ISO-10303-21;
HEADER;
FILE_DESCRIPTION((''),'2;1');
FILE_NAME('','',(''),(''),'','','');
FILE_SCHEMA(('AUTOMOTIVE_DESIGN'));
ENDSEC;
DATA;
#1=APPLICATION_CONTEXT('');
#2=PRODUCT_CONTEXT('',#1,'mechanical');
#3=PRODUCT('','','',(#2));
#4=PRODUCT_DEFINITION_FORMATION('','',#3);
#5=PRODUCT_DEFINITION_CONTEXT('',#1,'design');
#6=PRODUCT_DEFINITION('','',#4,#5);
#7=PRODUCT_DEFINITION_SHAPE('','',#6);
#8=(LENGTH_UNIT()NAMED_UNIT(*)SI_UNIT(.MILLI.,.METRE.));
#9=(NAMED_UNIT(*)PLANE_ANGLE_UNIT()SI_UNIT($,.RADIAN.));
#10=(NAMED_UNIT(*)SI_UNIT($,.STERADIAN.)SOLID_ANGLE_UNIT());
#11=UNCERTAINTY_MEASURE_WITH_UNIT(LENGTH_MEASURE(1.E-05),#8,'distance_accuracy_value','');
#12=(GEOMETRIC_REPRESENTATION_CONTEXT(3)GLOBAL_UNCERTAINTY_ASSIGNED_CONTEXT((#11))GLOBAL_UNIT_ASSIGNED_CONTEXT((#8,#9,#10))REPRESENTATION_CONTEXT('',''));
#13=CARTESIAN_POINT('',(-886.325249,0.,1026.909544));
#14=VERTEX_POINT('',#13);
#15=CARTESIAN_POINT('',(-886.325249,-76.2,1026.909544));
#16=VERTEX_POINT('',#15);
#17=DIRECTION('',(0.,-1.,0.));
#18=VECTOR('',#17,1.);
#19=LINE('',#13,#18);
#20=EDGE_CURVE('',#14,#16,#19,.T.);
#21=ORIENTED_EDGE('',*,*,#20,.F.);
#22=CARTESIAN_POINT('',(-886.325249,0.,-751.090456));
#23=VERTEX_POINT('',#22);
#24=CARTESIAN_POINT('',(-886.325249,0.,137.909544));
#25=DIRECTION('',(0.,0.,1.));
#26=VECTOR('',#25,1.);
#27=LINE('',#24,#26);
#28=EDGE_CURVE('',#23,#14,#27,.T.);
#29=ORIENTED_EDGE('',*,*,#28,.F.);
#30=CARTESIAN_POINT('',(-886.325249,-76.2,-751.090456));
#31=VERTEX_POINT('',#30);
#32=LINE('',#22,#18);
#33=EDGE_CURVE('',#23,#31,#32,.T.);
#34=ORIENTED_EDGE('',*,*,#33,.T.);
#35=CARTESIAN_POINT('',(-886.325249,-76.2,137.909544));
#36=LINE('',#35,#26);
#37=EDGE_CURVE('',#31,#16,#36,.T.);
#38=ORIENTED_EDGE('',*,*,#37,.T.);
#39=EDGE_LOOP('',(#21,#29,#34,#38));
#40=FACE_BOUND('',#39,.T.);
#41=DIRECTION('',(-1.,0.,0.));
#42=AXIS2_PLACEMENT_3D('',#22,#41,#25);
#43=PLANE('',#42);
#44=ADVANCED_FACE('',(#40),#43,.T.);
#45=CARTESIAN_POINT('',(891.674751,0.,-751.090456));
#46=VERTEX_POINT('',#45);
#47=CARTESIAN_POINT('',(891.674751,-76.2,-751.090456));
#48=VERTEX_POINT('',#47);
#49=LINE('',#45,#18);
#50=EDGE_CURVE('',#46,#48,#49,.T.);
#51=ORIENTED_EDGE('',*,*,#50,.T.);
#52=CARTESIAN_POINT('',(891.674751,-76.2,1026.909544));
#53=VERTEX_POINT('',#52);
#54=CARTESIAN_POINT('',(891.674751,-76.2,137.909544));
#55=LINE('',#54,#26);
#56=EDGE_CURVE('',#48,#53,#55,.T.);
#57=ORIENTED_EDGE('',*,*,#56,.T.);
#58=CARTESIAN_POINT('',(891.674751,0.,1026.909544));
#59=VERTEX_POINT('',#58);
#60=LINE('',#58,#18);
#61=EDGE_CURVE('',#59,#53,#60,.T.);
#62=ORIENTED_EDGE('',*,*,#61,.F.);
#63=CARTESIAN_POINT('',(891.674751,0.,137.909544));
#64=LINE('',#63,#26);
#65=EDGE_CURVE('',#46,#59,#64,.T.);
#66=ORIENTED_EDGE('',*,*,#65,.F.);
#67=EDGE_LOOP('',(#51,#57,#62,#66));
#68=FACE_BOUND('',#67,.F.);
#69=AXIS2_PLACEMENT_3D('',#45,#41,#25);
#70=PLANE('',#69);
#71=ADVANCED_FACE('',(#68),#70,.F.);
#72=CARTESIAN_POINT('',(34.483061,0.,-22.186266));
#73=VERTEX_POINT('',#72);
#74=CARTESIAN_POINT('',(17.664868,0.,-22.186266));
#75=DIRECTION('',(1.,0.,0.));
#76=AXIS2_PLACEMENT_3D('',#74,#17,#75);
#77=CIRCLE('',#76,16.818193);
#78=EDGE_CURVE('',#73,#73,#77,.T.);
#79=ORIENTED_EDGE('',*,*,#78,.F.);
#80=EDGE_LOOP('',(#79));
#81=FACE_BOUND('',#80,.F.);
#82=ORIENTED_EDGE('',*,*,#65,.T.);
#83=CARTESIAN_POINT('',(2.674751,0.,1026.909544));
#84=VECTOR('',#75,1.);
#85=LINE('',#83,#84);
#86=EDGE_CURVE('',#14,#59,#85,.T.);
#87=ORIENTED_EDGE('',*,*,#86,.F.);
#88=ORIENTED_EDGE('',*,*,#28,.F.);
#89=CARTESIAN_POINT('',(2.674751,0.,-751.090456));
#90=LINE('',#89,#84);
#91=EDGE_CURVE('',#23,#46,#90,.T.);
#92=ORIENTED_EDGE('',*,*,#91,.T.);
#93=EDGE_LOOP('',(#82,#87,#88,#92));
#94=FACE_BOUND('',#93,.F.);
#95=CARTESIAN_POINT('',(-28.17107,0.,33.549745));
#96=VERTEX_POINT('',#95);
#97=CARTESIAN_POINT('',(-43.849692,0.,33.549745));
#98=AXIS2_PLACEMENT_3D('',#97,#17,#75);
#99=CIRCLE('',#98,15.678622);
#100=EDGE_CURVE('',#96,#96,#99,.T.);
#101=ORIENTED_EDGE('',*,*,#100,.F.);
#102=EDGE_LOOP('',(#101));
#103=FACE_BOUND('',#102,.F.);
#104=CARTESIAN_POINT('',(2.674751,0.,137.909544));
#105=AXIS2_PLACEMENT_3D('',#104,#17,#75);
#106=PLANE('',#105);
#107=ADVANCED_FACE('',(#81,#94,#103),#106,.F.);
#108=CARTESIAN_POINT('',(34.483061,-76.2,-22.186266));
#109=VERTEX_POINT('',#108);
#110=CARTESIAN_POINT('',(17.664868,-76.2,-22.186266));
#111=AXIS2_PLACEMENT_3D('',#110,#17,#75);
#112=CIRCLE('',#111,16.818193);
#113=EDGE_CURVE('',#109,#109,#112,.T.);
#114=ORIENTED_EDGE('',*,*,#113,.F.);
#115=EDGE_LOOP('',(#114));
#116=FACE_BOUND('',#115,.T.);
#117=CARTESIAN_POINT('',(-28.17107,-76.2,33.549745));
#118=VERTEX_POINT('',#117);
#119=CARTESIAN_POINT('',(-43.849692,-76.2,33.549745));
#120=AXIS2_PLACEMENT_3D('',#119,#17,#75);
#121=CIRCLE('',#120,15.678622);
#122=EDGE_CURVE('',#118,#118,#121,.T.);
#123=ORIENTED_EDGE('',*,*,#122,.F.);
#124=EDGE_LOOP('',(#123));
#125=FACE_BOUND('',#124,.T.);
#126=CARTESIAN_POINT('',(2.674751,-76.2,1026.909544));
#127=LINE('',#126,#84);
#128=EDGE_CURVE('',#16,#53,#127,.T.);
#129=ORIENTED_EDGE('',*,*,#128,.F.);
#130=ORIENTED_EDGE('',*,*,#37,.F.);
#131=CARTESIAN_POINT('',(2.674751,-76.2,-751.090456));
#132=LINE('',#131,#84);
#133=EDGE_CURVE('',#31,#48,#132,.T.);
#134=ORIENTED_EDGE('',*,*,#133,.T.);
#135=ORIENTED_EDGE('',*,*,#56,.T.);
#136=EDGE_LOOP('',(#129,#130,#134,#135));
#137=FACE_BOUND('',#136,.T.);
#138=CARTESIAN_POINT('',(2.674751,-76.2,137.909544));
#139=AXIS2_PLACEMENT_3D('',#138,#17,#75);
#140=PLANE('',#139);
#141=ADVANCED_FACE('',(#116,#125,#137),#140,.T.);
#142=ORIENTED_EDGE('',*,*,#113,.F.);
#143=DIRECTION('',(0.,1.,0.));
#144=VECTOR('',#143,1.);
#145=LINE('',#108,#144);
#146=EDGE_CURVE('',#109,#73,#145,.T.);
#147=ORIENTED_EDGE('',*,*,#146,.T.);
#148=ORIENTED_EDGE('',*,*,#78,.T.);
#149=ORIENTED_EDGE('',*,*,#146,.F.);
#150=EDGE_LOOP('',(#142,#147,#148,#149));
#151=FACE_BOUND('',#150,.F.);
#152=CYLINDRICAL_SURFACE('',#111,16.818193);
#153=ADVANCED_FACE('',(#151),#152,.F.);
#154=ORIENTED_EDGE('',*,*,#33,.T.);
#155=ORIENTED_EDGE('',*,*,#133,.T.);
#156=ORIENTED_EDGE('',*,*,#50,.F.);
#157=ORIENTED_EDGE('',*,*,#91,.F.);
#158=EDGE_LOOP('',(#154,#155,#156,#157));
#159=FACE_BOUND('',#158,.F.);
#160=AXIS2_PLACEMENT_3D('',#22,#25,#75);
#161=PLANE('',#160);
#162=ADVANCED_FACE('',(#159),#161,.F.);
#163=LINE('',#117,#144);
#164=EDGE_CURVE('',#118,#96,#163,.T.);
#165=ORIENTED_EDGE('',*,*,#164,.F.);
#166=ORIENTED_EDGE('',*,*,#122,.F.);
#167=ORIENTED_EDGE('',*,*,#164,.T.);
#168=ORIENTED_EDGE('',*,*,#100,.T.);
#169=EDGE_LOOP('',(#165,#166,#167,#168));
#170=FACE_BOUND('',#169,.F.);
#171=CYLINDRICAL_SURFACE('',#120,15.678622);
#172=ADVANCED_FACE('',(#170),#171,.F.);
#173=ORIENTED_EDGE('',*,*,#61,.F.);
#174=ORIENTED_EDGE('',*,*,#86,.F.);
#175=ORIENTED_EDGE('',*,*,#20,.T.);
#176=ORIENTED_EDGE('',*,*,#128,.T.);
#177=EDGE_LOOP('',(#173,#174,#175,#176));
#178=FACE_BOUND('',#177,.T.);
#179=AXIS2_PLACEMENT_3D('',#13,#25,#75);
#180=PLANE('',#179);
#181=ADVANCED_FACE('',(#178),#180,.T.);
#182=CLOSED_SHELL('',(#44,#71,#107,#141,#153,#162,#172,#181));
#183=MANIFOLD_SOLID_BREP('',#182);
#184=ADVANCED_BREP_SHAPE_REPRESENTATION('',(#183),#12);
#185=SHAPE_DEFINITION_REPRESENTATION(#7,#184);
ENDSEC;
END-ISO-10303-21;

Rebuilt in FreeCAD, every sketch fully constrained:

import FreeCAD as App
import Part
import Sketcher

V = App.Vector
Q = App.Units.Quantity


def add_polygon(sketch, points):
    """Adds a closed chain of lines whose ends are joined by coincident constraints."""
    first, n = sketch.GeometryCount, len(points)
    for a, b in zip(points, points[1:] + points[:1]):
        sketch.addGeometry(Part.LineSegment(App.Vector(*a, 0), App.Vector(*b, 0)), False)
    for i in range(n):
        sketch.addConstraint(Sketcher.Constraint("Coincident", first + i, 2, first + (i + 1) % n, 1))

doc = App.newDocument("Part")
params = doc.addObject("Spreadsheet::Sheet", "Params")
for row, (alias, value) in enumerate([
    ("sketch1_width", "70 in"),
    ("pad1_length", "3 in"),
], start=1):
    params.set(f"A{row}", alias)
    params.set(f"B{row}", "=" + value)
    params.setAlias(f"B{row}", alias)

body = doc.addObject("PartDesign::Body", "Body")

# Sketch on XZ plane
sketch1 = body.newObject("Sketcher::SketchObject", "Sketch")
sketch1.AttachmentSupport = (doc.getObject("XZ_Plane"), [""])
sketch1.MapMode = "FlatFace"
add_polygon(sketch1, [(-886.325249, 1026.909544), (-886.325249, -751.090456), (891.674751, -751.090456), (891.674751, 1026.909544)])  # lines 0-3
sketch1.addConstraint([
    Sketcher.Constraint("Vertical", 0),
    Sketcher.Constraint("Horizontal", 1),
    Sketcher.Constraint("Vertical", 2),
    Sketcher.Constraint("Horizontal", 3),
    Sketcher.Constraint("Equal", 3, 0),
    Sketcher.Constraint("DistanceX", 1, 1, 1, 2, Q("70 in")),
    Sketcher.Constraint("DistanceX", 0, 2, -1, 1, Q("886.325249 mm")),
    Sketcher.Constraint("DistanceY", 0, 2, -1, 1, Q("751.090456 mm")),
])
sketch1.setExpression("Constraints[9]", "Params.sketch1_width")
pad1 = body.newObject("PartDesign::Pad", "Pad")
pad1.Profile = sketch1
pad1.setExpression("Length", "Params.pad1_length")

# Sketch on XZ plane
sketch2 = body.newObject("Sketcher::SketchObject", "Sketch001")
sketch2.AttachmentSupport = (doc.getObject("XZ_Plane"), [""])
sketch2.MapMode = "FlatFace"
sketch2.AttachmentOffset = App.Placement(V(0, 0, 3 * 25.4), App.Rotation())
sketch2.addGeometry([
    Part.Circle(V(-43.849692, 33.549745, 0), V(0, 0, 1), 15.678622),
    Part.Circle(V(17.664868, -22.186266, 0), V(0, 0, 1), 16.818193),
], False)
sketch2.addConstraint([
    Sketcher.Constraint("Diameter", 0, Q("31.357244 mm")),
    Sketcher.Constraint("Diameter", 1, Q("33.636386 mm")),
    Sketcher.Constraint("DistanceX", 0, 3, -1, 1, Q("43.849692 mm")),
    Sketcher.Constraint("DistanceX", 0, 3, 1, 3, Q("61.51456 mm")),
    Sketcher.Constraint("DistanceY", 1, 3, 0, 3, Q("55.736011 mm")),
    Sketcher.Constraint("DistanceY", -1, 1, 0, 3, Q("33.549745 mm")),
])
pocket1 = body.newObject("PartDesign::Pocket", "Pocket")
pocket1.Profile = sketch2
pocket1.Type = "ThroughAll"

doc.recompute()
